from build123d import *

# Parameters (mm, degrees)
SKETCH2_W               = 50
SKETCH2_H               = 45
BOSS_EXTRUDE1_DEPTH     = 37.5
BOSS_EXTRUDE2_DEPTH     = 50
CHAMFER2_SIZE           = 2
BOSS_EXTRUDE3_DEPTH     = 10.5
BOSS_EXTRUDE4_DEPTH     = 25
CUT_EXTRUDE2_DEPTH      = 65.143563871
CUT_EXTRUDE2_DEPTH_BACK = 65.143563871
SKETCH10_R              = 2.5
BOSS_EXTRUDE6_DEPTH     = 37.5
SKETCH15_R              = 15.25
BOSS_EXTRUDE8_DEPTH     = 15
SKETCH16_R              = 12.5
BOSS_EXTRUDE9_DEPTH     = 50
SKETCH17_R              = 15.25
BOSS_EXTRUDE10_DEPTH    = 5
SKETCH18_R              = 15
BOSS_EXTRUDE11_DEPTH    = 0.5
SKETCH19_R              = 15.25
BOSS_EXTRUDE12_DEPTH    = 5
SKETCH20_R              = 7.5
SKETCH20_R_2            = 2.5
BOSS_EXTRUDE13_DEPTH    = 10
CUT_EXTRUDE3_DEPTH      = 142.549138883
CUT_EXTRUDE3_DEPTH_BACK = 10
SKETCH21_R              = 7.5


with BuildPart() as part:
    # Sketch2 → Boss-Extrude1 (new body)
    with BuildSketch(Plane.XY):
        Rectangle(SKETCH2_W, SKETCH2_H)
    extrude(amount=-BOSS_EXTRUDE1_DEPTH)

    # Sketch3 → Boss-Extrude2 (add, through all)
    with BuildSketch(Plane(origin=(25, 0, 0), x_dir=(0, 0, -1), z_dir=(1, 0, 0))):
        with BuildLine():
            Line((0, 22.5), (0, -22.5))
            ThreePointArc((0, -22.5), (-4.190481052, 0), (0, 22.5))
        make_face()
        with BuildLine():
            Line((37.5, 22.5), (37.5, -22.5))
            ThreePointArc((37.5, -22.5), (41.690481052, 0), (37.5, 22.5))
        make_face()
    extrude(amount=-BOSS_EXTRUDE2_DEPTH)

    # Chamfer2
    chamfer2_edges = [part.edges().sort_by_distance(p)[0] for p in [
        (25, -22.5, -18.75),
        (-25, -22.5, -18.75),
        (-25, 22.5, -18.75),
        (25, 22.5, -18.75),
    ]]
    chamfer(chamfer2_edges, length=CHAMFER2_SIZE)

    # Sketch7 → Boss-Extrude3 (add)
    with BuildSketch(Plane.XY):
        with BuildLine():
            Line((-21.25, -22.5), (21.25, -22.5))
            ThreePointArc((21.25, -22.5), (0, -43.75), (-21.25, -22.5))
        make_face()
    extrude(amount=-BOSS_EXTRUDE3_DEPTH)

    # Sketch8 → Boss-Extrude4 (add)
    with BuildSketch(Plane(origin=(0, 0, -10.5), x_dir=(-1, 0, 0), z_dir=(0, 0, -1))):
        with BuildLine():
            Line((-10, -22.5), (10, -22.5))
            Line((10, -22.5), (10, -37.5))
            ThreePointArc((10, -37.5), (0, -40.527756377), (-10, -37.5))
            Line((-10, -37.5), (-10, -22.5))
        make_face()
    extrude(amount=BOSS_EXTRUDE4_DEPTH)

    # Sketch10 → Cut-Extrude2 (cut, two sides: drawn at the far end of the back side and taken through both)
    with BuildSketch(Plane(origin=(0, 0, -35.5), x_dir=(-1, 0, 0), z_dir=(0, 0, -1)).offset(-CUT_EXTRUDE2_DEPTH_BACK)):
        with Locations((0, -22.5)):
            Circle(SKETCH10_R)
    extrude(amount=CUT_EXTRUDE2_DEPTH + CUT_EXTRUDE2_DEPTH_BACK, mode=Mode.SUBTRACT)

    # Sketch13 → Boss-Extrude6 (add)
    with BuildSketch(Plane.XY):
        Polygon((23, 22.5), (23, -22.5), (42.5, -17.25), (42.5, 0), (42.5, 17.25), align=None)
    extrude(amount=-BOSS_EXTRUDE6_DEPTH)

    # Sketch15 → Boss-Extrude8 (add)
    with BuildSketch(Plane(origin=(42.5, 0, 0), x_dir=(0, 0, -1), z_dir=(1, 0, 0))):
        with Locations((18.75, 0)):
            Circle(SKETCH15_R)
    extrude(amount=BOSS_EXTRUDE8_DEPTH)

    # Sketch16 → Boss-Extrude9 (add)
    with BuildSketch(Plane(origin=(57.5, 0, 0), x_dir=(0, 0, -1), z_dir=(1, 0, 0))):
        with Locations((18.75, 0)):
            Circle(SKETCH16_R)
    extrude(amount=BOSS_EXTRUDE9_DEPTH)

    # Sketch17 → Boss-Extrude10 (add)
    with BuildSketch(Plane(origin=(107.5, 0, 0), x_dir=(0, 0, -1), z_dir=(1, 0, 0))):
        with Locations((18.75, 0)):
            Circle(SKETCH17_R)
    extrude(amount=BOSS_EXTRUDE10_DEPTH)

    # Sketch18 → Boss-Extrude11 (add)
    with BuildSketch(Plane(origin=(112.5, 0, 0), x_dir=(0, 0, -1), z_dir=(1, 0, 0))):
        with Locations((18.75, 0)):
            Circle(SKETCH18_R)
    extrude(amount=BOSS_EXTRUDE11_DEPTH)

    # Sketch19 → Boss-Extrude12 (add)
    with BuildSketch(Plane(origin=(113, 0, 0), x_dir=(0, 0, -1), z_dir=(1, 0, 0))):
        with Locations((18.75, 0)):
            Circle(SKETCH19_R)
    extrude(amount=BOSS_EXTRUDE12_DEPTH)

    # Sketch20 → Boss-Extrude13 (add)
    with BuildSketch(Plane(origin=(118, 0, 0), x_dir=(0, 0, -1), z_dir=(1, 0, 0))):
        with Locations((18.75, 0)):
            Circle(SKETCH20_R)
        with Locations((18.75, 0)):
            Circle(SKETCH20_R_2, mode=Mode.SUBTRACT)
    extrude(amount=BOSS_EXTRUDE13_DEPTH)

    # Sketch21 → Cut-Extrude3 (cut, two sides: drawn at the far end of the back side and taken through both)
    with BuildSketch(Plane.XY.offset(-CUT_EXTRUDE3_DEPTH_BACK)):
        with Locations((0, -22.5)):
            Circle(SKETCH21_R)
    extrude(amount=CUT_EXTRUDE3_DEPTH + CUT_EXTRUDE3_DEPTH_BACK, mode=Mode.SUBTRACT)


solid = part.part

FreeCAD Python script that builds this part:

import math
import FreeCAD as App
import Part
import Sketcher

V = App.Vector
Q = App.Units.Quantity


def edges_at(feature, points):
    """Names of the edges that pass closest to the given points."""
    edges = feature.Shape.Edges
    near = lambda p: min(range(len(edges)), key=lambda i: edges[i].distToShape(Part.Vertex(*p))[0])
    return sorted({f"Edge{near(p) + 1}" for p in points})


def add_polygon(sketch, points):
    """Adds a closed chain of lines whose ends are joined by coincident constraints."""
    first, n = sketch.GeometryCount, len(points)
    for a, b in zip(points, points[1:] + points[:1]):
        sketch.addGeometry(Part.LineSegment(App.Vector(*a, 0), App.Vector(*b, 0)), False)
    for i in range(n):
        sketch.addConstraint(Sketcher.Constraint("Coincident", first + i, 2, first + (i + 1) % n, 1))

doc = App.newDocument("Part")
body = doc.addObject("PartDesign::Body", "Body")

# Sketch on XY plane
sketch1 = body.newObject("Sketcher::SketchObject", "Sketch")
sketch1.AttachmentSupport = (doc.getObject("XY_Plane"), [""])
sketch1.MapMode = "FlatFace"
add_polygon(sketch1, [(-25, 22.5), (-25, -22.5), (25, -22.5), (25, 22.5)])  # lines 0-3
sketch1.addConstraint(Sketcher.Constraint("Vertical", 0))
sketch1.addConstraint(Sketcher.Constraint("Horizontal", 1))
sketch1.addConstraint(Sketcher.Constraint("Vertical", 2))
sketch1.addConstraint(Sketcher.Constraint("Horizontal", 3))
sketch1.addConstraint(Sketcher.Constraint("Symmetric", 0, 2, 2, 2, -1, 1))
sketch1.addConstraint(Sketcher.Constraint("DistanceX", 1, 1, 1, 2, Q("50 mm")))
sketch1.addConstraint(Sketcher.Constraint("DistanceY", 0, 2, 0, 1, Q("45 mm")))
pad1 = body.newObject("PartDesign::Pad", "Pad")
pad1.Profile = sketch1
pad1.Length = 37.5
pad1.Reversed = True

# Sketch on YZ plane
sketch2 = body.newObject("Sketcher::SketchObject", "Sketch001")
sketch2.AttachmentSupport = (doc.getObject("YZ_Plane"), [""])
sketch2.MapMode = "FlatFace"
sketch2.AttachmentOffset = App.Placement(V(0, 0, 25), App.Rotation())
sketch2.addGeometry(Part.LineSegment(V(-22.5, 0, 0), V(22.5, 0, 0)), False)
sketch2.addGeometry(Part.ArcOfCircle(Part.Circle(V(0, -58.309519, 0), V(0, 0, 1), 62.5), math.radians(68.899804), math.radians(111.100196)), False)
sketch2.addGeometry(Part.LineSegment(V(22.5, -37.5, 0), V(-22.5, -37.5, 0)), False)
sketch2.addGeometry(Part.ArcOfCircle(Part.Circle(V(0, 20.809519, 0), V(0, 0, 1), 62.5), math.radians(-111.100196), math.radians(-68.899804)), False)
sketch2.addConstraint(Sketcher.Constraint("Coincident", 0, 1, 1, 2))
sketch2.addConstraint(Sketcher.Constraint("Coincident", 1, 1, 0, 2))
sketch2.addConstraint(Sketcher.Constraint("Coincident", 2, 1, 3, 2))
sketch2.addConstraint(Sketcher.Constraint("Coincident", 3, 1, 2, 2))
sketch2.addConstraint(Sketcher.Constraint("Horizontal", 0))
sketch2.addConstraint(Sketcher.Constraint("Horizontal", 2))
sketch2.addConstraint(Sketcher.Constraint("Equal", 1, 3))
sketch2.addConstraint(Sketcher.Constraint("Symmetric", 0, 1, 1, 1, -1, 1))
sketch2.addConstraint(Sketcher.Constraint("PointOnObject", 3, 3, -2))
sketch2.addConstraint(Sketcher.Constraint("Vertical", 1, 1, 2, 1))
sketch2.addConstraint(Sketcher.Constraint("Radius", 1, Q("62.5 mm")))
sketch2.addConstraint(Sketcher.Constraint("DistanceX", 0, 1, 0, 2, Q("45 mm")))
sketch2.addConstraint(Sketcher.Constraint("DistanceY", 2, 1, -1, 1, Q("37.5 mm")))
pad2 = body.newObject("PartDesign::Pad", "Pad001")
pad2.Profile = sketch2
pad2.Type = "UpToLast"
pad2.Reversed = True
doc.recompute()

chamfer = body.newObject("PartDesign::Chamfer", "Chamfer")
chamfer.Base = (pad2, edges_at(pad2, [
    (25, -22.5, -18.75),
    (-25, -22.5, -18.75),
    (-25, 22.5, -18.75),
    (25, 22.5, -18.75),
]))
chamfer.Size = 2

# Sketch on XY plane
sketch3 = body.newObject("Sketcher::SketchObject", "Sketch002")
sketch3.AttachmentSupport = (doc.getObject("XY_Plane"), [""])
sketch3.MapMode = "FlatFace"
sketch3.addGeometry(Part.LineSegment(V(21.25, -22.5, 0), V(-21.25, -22.5, 0)), False)
sketch3.addGeometry(Part.ArcOfCircle(Part.Circle(V(0, -22.5, 0), V(0, 0, 1), 21.25), math.radians(180), math.radians(360)), False)
sketch3.addConstraint(Sketcher.Constraint("Coincident", 0, 1, 1, 2))
sketch3.addConstraint(Sketcher.Constraint("Coincident", 1, 1, 0, 2))
sketch3.addConstraint(Sketcher.Constraint("Horizontal", 0))
sketch3.addConstraint(Sketcher.Constraint("PointOnObject", 1, 3, -2))
sketch3.addConstraint(Sketcher.Constraint("Horizontal", 1, 3, 0, 1))
sketch3.addConstraint(Sketcher.Constraint("Radius", 1, Q("21.25 mm")))
sketch3.addConstraint(Sketcher.Constraint("DistanceY", 1, 3, -1, 1, Q("22.5 mm")))
pad3 = body.newObject("PartDesign::Pad", "Pad002")
pad3.Profile = sketch3
pad3.Length = 10.5
pad3.Reversed = True

# Sketch on XY plane
sketch4 = body.newObject("Sketcher::SketchObject", "Sketch003")
sketch4.AttachmentSupport = (doc.getObject("XY_Plane"), [""])
sketch4.MapMode = "FlatFace"
sketch4.AttachmentOffset = App.Placement(V(0, 0, -10.5), App.Rotation())
sketch4.addGeometry(Part.LineSegment(V(-10, -22.5, 0), V(10, -22.5, 0)), False)
sketch4.addGeometry(Part.LineSegment(V(10, -22.5, 0), V(10, -37.5, 0)), False)
sketch4.addGeometry(Part.ArcOfCircle(Part.Circle(V(0, -22.5, 0), V(0, 0, 1), 18.027756), math.radians(-123.690068), math.radians(-56.309932)), False)
sketch4.addGeometry(Part.LineSegment(V(-10, -37.5, 0), V(-10, -22.5, 0)), False)
sketch4.addConstraint(Sketcher.Constraint("Coincident", 0, 2, 1, 1))
sketch4.addConstraint(Sketcher.Constraint("Coincident", 1, 2, 2, 2))
sketch4.addConstraint(Sketcher.Constraint("Coincident", 2, 1, 3, 1))
sketch4.addConstraint(Sketcher.Constraint("Coincident", 3, 2, 0, 1))
sketch4.addConstraint(Sketcher.Constraint("Horizontal", 0))
sketch4.addConstraint(Sketcher.Constraint("Vertical", 1))
sketch4.addConstraint(Sketcher.Constraint("Vertical", 3))
sketch4.addConstraint(Sketcher.Constraint("Symmetric", 1, 2, 2, 1, -2))
sketch4.addConstraint(Sketcher.Constraint("Horizontal", 2, 3, 0, 2))
sketch4.addConstraint(Sketcher.Constraint("DistanceX", 0, 1, 0, 2, Q("20 mm")))
sketch4.addConstraint(Sketcher.Constraint("DistanceY", 1, 2, 1, 1, Q("15 mm")))
sketch4.addConstraint(Sketcher.Constraint("DistanceY", 2, 3, -1, 1, Q("22.5 mm")))
pad4 = body.newObject("PartDesign::Pad", "Pad003")
pad4.Profile = sketch4
pad4.Length = 25
pad4.Reversed = True

# Sketch on XY plane
sketch5 = body.newObject("Sketcher::SketchObject", "Sketch004")
sketch5.AttachmentSupport = (doc.getObject("XY_Plane"), [""])
sketch5.MapMode = "FlatFace"
sketch5.AttachmentOffset = App.Placement(V(0, 0, -35.5), App.Rotation())
sketch5.addGeometry(Part.Circle(V(0, -22.5, 0), V(0, 0, 1), 2.5), False)
sketch5.addConstraint(Sketcher.Constraint("PointOnObject", 0, 3, -2))
sketch5.addConstraint(Sketcher.Constraint("Diameter", 0, Q("5 mm")))
sketch5.addConstraint(Sketcher.Constraint("DistanceY", 0, 3, -1, 1, Q("22.5 mm")))
pocket1 = body.newObject("PartDesign::Pocket", "Pocket")
pocket1.Profile = sketch5
pocket1.Type = "ThroughAll"
pocket1.Midplane = True

# Sketch on XY plane
sketch6 = body.newObject("Sketcher::SketchObject", "Sketch005")
sketch6.AttachmentSupport = (doc.getObject("XY_Plane"), [""])
sketch6.MapMode = "FlatFace"
add_polygon(sketch6, [(23, 22.5), (23, -22.5), (42.5, -17.25), (42.5, 17.25)])  # lines 0-3
sketch6.addConstraint(Sketcher.Constraint("Vertical", 0))
sketch6.addConstraint(Sketcher.Constraint("Vertical", 2))
sketch6.addConstraint(Sketcher.Constraint("Equal", 1, 3))
sketch6.addConstraint(Sketcher.Constraint("DistanceY", 0, 2, 0, 1, Q("45 mm")))
sketch6.addConstraint(Sketcher.Constraint("DistanceY", 2, 1, 2, 2, Q("34.5 mm")))
sketch6.addConstraint(Sketcher.Constraint("DistanceX", -1, 1, 0, 2, Q("23 mm")))
sketch6.addConstraint(Sketcher.Constraint("DistanceY", 0, 2, -1, 1, Q("22.5 mm")))
sketch6.addConstraint(Sketcher.Constraint("DistanceX", -1, 1, 1, 2, Q("42.5 mm")))
pad5 = body.newObject("PartDesign::Pad", "Pad004")
pad5.Profile = sketch6
pad5.Length = 37.5
pad5.Reversed = True

# Sketch on YZ plane
sketch7 = body.newObject("Sketcher::SketchObject", "Sketch006")
sketch7.AttachmentSupport = (doc.getObject("YZ_Plane"), [""])
sketch7.MapMode = "FlatFace"
sketch7.AttachmentOffset = App.Placement(V(0, 0, 42.5), App.Rotation())
sketch7.addGeometry(Part.Circle(V(0, -18.75, 0), V(0, 0, 1), 15.25), False)
sketch7.addConstraint(Sketcher.Constraint("PointOnObject", 0, 3, -2))
sketch7.addConstraint(Sketcher.Constraint("Diameter", 0, Q("30.5 mm")))
sketch7.addConstraint(Sketcher.Constraint("DistanceY", 0, 3, -1, 1, Q("18.75 mm")))
pad6 = body.newObject("PartDesign::Pad", "Pad005")
pad6.Profile = sketch7
pad6.Length = 15

# Sketch on YZ plane
sketch8 = body.newObject("Sketcher::SketchObject", "Sketch007")
sketch8.AttachmentSupport = (doc.getObject("YZ_Plane"), [""])
sketch8.MapMode = "FlatFace"
sketch8.AttachmentOffset = App.Placement(V(0, 0, 57.5), App.Rotation())
sketch8.addGeometry(Part.Circle(V(0, -18.75, 0), V(0, 0, 1), 12.5), False)
sketch8.addConstraint(Sketcher.Constraint("PointOnObject", 0, 3, -2))
sketch8.addConstraint(Sketcher.Constraint("Diameter", 0, Q("25 mm")))
sketch8.addConstraint(Sketcher.Constraint("DistanceY", 0, 3, -1, 1, Q("18.75 mm")))
pad7 = body.newObject("PartDesign::Pad", "Pad006")
pad7.Profile = sketch8
pad7.Length = 50

# Sketch on YZ plane
sketch9 = body.newObject("Sketcher::SketchObject", "Sketch008")
sketch9.AttachmentSupport = (doc.getObject("YZ_Plane"), [""])
sketch9.MapMode = "FlatFace"
sketch9.AttachmentOffset = App.Placement(V(0, 0, 107.5), App.Rotation())
sketch9.addGeometry(Part.Circle(V(0, -18.75, 0), V(0, 0, 1), 15.25), False)
sketch9.addConstraint(Sketcher.Constraint("PointOnObject", 0, 3, -2))
sketch9.addConstraint(Sketcher.Constraint("Diameter", 0, Q("30.5 mm")))
sketch9.addConstraint(Sketcher.Constraint("DistanceY", 0, 3, -1, 1, Q("18.75 mm")))
pad8 = body.newObject("PartDesign::Pad", "Pad007")
pad8.Profile = sketch9
pad8.Length = 5

# Sketch on YZ plane
sketch10 = body.newObject("Sketcher::SketchObject", "Sketch009")
sketch10.AttachmentSupport = (doc.getObject("YZ_Plane"), [""])
sketch10.MapMode = "FlatFace"
sketch10.AttachmentOffset = App.Placement(V(0, 0, 112.5), App.Rotation())
sketch10.addGeometry(Part.Circle(V(0, -18.75, 0), V(0, 0, 1), 15), False)
sketch10.addConstraint(Sketcher.Constraint("PointOnObject", 0, 3, -2))
sketch10.addConstraint(Sketcher.Constraint("Diameter", 0, Q("30 mm")))
sketch10.addConstraint(Sketcher.Constraint("DistanceY", 0, 3, -1, 1, Q("18.75 mm")))
pad9 = body.newObject("PartDesign::Pad", "Pad008")
pad9.Profile = sketch10
pad9.Length = 0.5

# Sketch on YZ plane
sketch11 = body.newObject("Sketcher::SketchObject", "Sketch010")
sketch11.AttachmentSupport = (doc.getObject("YZ_Plane"), [""])
sketch11.MapMode = "FlatFace"
sketch11.AttachmentOffset = App.Placement(V(0, 0, 113), App.Rotation())
sketch11.addGeometry(Part.Circle(V(0, -18.75, 0), V(0, 0, 1), 15.25), False)
sketch11.addConstraint(Sketcher.Constraint("PointOnObject", 0, 3, -2))
sketch11.addConstraint(Sketcher.Constraint("Diameter", 0, Q("30.5 mm")))
sketch11.addConstraint(Sketcher.Constraint("DistanceY", 0, 3, -1, 1, Q("18.75 mm")))
pad10 = body.newObject("PartDesign::Pad", "Pad009")
pad10.Profile = sketch11
pad10.Length = 5

# Sketch on YZ plane
sketch12 = body.newObject("Sketcher::SketchObject", "Sketch011")
sketch12.AttachmentSupport = (doc.getObject("YZ_Plane"), [""])
sketch12.MapMode = "FlatFace"
sketch12.AttachmentOffset = App.Placement(V(0, 0, 118), App.Rotation())
sketch12.addGeometry(Part.Circle(V(0, -18.75, 0), V(0, 0, 1), 7.5), False)
sketch12.addGeometry(Part.Circle(V(0, -18.75, 0), V(0, 0, 1), 2.5), False)
sketch12.addConstraint(Sketcher.Constraint("Coincident", 1, 3, 0, 3))
sketch12.addConstraint(Sketcher.Constraint("PointOnObject", 0, 3, -2))
sketch12.addConstraint(Sketcher.Constraint("Diameter", 0, Q("15 mm")))
sketch12.addConstraint(Sketcher.Constraint("Diameter", 1, Q("5 mm")))
sketch12.addConstraint(Sketcher.Constraint("DistanceY", 0, 3, -1, 1, Q("18.75 mm")))
pad11 = body.newObject("PartDesign::Pad", "Pad010")
pad11.Profile = sketch12
pad11.Length = 10

# Sketch on XY plane
sketch13 = body.newObject("Sketcher::SketchObject", "Sketch012")
sketch13.AttachmentSupport = (doc.getObject("XY_Plane"), [""])
sketch13.MapMode = "FlatFace"
sketch13.addGeometry(Part.Circle(V(0, -22.5, 0), V(0, 0, 1), 7.5), False)
sketch13.addConstraint(Sketcher.Constraint("PointOnObject", 0, 3, -2))
sketch13.addConstraint(Sketcher.Constraint("Diameter", 0, Q("15 mm")))
sketch13.addConstraint(Sketcher.Constraint("DistanceY", 0, 3, -1, 1, Q("22.5 mm")))
pocket2 = body.newObject("PartDesign::Pocket", "Pocket001")
pocket2.Profile = sketch13
pocket2.Type = "TwoLengths"
pocket2.Length = 142.549139
pocket2.Length2 = 10
pocket2.Reversed = True

doc.recompute()
